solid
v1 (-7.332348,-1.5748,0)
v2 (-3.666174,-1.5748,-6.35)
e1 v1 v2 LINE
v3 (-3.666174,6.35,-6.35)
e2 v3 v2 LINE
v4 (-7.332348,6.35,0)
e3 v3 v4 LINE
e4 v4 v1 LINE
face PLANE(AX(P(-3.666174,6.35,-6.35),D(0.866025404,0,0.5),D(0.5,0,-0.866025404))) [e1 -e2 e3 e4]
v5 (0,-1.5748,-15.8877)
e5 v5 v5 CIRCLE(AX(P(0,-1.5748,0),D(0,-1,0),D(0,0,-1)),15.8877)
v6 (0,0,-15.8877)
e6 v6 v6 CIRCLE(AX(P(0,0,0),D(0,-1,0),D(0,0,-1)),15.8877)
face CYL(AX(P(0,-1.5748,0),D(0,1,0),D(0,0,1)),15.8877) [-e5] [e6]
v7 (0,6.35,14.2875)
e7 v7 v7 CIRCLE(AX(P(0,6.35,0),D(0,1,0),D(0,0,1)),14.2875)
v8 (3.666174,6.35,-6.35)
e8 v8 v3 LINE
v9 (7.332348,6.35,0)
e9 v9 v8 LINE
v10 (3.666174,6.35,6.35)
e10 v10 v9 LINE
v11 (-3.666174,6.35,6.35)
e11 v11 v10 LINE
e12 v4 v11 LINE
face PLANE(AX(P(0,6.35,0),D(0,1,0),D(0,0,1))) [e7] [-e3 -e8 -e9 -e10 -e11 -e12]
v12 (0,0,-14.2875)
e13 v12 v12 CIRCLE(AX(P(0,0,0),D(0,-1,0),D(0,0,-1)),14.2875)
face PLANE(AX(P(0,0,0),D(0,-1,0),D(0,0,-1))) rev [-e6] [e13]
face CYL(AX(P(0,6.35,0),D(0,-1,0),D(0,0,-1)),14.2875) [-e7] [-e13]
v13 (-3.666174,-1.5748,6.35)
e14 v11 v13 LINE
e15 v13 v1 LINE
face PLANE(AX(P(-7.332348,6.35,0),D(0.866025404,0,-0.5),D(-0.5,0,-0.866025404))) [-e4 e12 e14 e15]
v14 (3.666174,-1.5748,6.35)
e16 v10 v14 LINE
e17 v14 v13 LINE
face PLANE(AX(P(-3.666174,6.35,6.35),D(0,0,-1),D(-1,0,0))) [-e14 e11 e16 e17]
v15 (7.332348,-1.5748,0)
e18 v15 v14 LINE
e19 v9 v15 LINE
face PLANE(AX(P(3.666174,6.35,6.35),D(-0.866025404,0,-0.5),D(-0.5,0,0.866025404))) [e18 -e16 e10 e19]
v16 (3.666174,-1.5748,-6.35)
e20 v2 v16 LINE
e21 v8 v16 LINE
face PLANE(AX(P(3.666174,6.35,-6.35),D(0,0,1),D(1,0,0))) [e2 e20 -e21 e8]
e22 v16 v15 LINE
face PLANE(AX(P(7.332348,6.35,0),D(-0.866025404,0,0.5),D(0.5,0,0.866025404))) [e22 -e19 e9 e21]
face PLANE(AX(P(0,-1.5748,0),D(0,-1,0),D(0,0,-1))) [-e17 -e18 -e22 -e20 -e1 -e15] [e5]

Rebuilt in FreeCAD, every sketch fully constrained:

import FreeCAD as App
import Part
import Sketcher
from FreeCAD import Vector
Q = App.Units.Quantity


def add_polygon(sketch, points):
    """Adds a closed chain of lines whose ends are joined by coincident constraints."""
    first, n = sketch.GeometryCount, len(points)
    for a, b in zip(points, points[1:] + points[:1]):
        sketch.addGeometry(Part.LineSegment(App.Vector(*a, 0), App.Vector(*b, 0)), False)
    for i in range(n):
        sketch.addConstraint(Sketcher.Constraint("Coincident", first + i, 2, first + (i + 1) % n, 1))

doc = App.newDocument("Part")
body = doc.addObject("PartDesign::Body", "Body")

# Sketch on XZ plane
sketch1 = body.newObject("Sketcher::SketchObject", "Sketch")
sketch1.AttachmentSupport = (doc.getObject("XZ_Plane"), [""])
sketch1.MapMode = "FlatFace"
sketch1.addGeometry(Part.Circle(Vector(0, 0, 0), Vector(0, 0, 1), 14.2875), False)  # 0
add_polygon(sketch1, [(3.666174, -6.35), (7.332348, 0), (3.666174, 6.35), (-3.666174, 6.35), (-7.332348, 0), (-3.666174, -6.35)])  # lines 1-6
sketch1.addConstraint([
    Sketcher.Constraint("Horizontal", 3),
    Sketcher.Constraint("Horizontal", 6),
    Sketcher.Constraint("Coincident", 0, 3, -1, 1),
    Sketcher.Constraint("Symmetric", 1, 2, 4, 2, -1, 1),
    Sketcher.Constraint("Symmetric", 2, 2, 5, 2, -1, 1),
    Sketcher.Constraint("PointOnObject", 1, 2, -1),
    Sketcher.Constraint("Parallel", 1, 4),
    Sketcher.Constraint("Vertical", 3, 2, 5, 2),
    Sketcher.Constraint("Diameter", 0, Q("1.125 in")),
    Sketcher.Constraint("Angle", 1, Q("60 deg")),
    Sketcher.Constraint("DistanceY", 5, 2, 3, 2, Q("0.5 in")),
    Sketcher.Constraint("DistanceX", 3, 2, 3, 1, Q("7.332348 mm")),
])
pad1 = body.newObject("PartDesign::Pad", "Pad")
pad1.Profile = sketch1
pad1.Length = Q("0.25 in")
pad1.Reversed = True

# Sketch on XZ plane
sketch2 = body.newObject("Sketcher::SketchObject", "Sketch001")
sketch2.AttachmentSupport = (doc.getObject("XZ_Plane"), [""])
sketch2.MapMode = "FlatFace"
sketch2.addGeometry(Part.Circle(Vector(0, 0, 0), Vector(0, 0, 1), 15.8877), False)  # 0
add_polygon(sketch2, [(-3.666174, -6.35), (-7.332348, 0), (-3.666174, 6.35), (3.666174, 6.35), (7.332348, 0), (3.666174, -6.35)])  # lines 1-6
sketch2.addConstraint([
    Sketcher.Constraint("Horizontal", 3),
    Sketcher.Constraint("Horizontal", 6),
    Sketcher.Constraint("Coincident", 0, 3, -1, 1),
    Sketcher.Constraint("Symmetric", 1, 2, 4, 2, -1, 1),
    Sketcher.Constraint("Symmetric", 2, 2, 5, 2, -1, 1),
    Sketcher.Constraint("PointOnObject", 1, 2, -1),
    Sketcher.Constraint("Parallel", 1, 4),
    Sketcher.Constraint("Vertical", 3, 2, 5, 2),
    Sketcher.Constraint("Diameter", 0, Q("1.251 in")),
    Sketcher.Constraint("Angle", 1, Q("120 deg")),
    Sketcher.Constraint("DistanceY", 5, 2, 3, 2, Q("0.5 in")),
    Sketcher.Constraint("DistanceX", 3, 1, 3, 2, Q("7.332348 mm")),
])
pad2 = body.newObject("PartDesign::Pad", "Pad001")
pad2.Profile = sketch2
pad2.Length = Q("0.062 in")

doc.recompute()
